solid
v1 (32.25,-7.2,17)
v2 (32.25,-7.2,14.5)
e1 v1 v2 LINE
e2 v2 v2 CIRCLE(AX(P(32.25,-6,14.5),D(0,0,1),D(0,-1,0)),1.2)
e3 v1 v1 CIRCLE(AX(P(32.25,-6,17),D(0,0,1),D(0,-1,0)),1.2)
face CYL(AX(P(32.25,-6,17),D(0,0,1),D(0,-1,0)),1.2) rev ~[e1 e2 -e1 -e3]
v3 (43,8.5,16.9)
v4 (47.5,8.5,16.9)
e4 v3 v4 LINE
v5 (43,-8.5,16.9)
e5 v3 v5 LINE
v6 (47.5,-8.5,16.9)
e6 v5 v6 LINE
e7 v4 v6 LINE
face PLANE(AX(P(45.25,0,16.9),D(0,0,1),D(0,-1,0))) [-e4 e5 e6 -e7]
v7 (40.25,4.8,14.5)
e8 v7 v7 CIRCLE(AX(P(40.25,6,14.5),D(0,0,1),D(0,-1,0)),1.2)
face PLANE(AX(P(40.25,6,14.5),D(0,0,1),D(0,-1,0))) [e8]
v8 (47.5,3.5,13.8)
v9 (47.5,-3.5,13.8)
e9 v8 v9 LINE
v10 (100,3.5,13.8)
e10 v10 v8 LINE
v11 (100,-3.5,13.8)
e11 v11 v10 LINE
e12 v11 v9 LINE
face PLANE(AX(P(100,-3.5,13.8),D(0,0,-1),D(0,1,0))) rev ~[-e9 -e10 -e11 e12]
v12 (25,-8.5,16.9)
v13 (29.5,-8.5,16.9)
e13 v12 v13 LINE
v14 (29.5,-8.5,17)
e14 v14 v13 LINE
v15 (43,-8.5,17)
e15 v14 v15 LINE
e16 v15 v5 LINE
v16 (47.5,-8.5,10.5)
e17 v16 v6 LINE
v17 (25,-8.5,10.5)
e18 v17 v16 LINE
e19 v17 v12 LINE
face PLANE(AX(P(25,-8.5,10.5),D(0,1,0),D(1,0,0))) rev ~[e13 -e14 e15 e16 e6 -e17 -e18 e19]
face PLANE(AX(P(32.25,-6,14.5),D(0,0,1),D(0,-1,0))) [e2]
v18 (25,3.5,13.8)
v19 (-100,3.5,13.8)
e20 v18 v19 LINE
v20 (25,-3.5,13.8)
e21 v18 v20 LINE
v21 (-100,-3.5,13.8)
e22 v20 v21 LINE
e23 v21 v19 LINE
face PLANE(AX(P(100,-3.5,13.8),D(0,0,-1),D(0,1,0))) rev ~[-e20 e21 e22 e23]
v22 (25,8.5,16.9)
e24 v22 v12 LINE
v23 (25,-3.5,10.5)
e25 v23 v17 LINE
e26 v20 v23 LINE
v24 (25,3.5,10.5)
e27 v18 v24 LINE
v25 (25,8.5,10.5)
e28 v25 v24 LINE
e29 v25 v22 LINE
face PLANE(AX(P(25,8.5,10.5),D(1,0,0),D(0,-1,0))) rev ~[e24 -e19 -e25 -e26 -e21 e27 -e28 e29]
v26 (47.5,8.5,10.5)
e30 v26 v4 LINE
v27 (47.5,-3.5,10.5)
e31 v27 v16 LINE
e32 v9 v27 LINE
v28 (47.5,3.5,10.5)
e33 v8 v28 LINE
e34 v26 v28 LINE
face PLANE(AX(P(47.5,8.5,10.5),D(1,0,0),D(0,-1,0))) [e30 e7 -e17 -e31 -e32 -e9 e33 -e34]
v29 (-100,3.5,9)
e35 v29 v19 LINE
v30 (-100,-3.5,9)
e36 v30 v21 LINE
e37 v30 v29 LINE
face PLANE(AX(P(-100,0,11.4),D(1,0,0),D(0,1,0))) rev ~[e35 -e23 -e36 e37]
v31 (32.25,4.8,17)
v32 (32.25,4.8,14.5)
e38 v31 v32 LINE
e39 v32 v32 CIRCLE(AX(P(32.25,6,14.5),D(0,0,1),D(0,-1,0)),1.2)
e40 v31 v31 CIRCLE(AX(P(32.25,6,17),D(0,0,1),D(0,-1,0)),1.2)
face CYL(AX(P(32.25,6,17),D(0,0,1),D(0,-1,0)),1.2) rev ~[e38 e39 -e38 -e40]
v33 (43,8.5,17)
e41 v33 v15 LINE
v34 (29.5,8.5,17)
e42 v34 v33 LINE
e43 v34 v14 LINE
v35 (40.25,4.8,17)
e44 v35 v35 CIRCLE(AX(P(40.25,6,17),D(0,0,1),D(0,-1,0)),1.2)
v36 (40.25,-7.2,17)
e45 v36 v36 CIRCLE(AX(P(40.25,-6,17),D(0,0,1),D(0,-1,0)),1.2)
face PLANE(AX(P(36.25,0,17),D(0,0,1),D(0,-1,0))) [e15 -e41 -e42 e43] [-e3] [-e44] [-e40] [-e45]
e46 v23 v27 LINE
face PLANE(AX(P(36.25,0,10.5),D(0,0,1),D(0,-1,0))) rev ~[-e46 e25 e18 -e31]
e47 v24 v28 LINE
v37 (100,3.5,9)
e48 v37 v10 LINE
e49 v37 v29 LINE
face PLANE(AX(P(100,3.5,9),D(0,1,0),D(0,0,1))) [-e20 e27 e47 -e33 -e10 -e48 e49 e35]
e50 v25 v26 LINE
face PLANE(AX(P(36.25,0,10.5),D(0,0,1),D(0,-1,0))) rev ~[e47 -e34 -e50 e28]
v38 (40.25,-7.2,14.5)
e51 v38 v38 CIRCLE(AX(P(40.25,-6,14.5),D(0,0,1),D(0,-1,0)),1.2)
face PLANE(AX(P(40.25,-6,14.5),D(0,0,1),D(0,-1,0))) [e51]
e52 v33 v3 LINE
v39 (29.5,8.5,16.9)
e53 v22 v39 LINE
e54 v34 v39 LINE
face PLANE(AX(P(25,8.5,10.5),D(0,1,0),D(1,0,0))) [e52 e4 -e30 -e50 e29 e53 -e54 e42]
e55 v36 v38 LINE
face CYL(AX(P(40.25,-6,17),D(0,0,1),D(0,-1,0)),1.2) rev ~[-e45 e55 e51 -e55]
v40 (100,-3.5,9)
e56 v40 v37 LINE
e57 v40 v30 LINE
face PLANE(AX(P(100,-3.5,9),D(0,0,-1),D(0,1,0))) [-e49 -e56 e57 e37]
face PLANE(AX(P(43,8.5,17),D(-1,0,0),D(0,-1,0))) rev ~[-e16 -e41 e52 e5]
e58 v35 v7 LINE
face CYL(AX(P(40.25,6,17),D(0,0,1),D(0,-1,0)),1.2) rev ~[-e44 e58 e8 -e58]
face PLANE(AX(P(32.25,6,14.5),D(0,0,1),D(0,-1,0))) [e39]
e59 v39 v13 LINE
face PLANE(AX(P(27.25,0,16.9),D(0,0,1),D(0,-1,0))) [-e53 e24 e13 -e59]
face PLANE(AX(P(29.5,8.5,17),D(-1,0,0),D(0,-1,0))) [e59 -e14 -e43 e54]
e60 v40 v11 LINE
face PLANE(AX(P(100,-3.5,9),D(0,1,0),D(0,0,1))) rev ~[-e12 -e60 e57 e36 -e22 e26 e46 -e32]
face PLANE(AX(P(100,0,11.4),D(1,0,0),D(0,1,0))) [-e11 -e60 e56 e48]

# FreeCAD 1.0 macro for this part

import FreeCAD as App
import Part
import Sketcher

V = App.Vector
Q = App.Units.Quantity


def add_polygon(sketch, points):
    """Adds a closed chain of lines whose ends are joined by coincident constraints."""
    first, n = sketch.GeometryCount, len(points)
    for a, b in zip(points, points[1:] + points[:1]):
        sketch.addGeometry(Part.LineSegment(App.Vector(*a, 0), App.Vector(*b, 0)), False)
    for i in range(n):
        sketch.addConstraint(Sketcher.Constraint("Coincident", first + i, 2, first + (i + 1) % n, 1))

doc = App.newDocument("Part")
params = doc.addObject("Spreadsheet::Sheet", "Params")
for row, (alias, value) in enumerate([
    ("sketch1_width", "7 mm"),
    ("sketch1_height", "4.8 mm"),
    ("pad1_length", "200 mm"),
    ("sketch2_width", "17 mm"),
    ("sketch2_height", "22.5 mm"),
    ("pad2_length", "6.5 mm"),
    ("sketch3_width", "17 mm"),
    ("sketch3_height", "4.5 mm"),
    ("pocket1_length", "0.1 mm"),
    ("sketch4_diameter", "2.4 mm"),
    ("pocket2_length", "2.5 mm"),
], start=1):
    params.set(f"A{row}", alias)
    params.set(f"B{row}", "=" + value)
    params.setAlias(f"B{row}", alias)

body = doc.addObject("PartDesign::Body", "Body")

# Sketch on XZ plane
sketch1 = body.newObject("Sketcher::SketchObject", "Sketch")
sketch1.AttachmentSupport = (doc.getObject("XZ_Plane"), [""])
sketch1.MapMode = "FlatFace"
add_polygon(sketch1, [(0, 4.8), (0, 0), (7, 0), (7, 4.8)])  # lines 0-3
sketch1.addConstraint([
    Sketcher.Constraint("Vertical", 0),
    Sketcher.Constraint("Horizontal", 1),
    Sketcher.Constraint("Vertical", 2),
    Sketcher.Constraint("Horizontal", 3),
    Sketcher.Constraint("Coincident", 0, 2, -1, 1),
    Sketcher.Constraint("DistanceX", 1, 1, 1, 2, Q("7 mm")),
    Sketcher.Constraint("DistanceY", 0, 2, 0, 1, Q("4.8 mm")),
])
sketch1.setExpression("Constraints[9]", "Params.sketch1_width")
sketch1.setExpression("Constraints[10]", "Params.sketch1_height")
pad1 = body.newObject("PartDesign::Pad", "Pad")
pad1.Profile = sketch1
pad1.setExpression("Length", "Params.pad1_length")
pad1.Reversed = True

# Sketch on XY plane
sketch2 = body.newObject("Sketcher::SketchObject", "Sketch001")
sketch2.AttachmentSupport = (doc.getObject("XY_Plane"), [""])
sketch2.MapMode = "FlatFace"
sketch2.AttachmentOffset = App.Placement(V(0, 0, 1.5), App.Rotation())
add_polygon(sketch2, [(12, 52), (12, 75), (-5, 75), (-5, 52)])  # lines 0-3
sketch2.addConstraint([
    Sketcher.Constraint("Vertical", 0),
    Sketcher.Constraint("Horizontal", 1),
    Sketcher.Constraint("Vertical", 2),
    Sketcher.Constraint("Horizontal", 3),
    Sketcher.Constraint("DistanceX", 1, 2, 1, 1, Q("17 mm")),
    Sketcher.Constraint("DistanceY", 0, 1, 0, 2, Q("22.5 mm")),
    Sketcher.Constraint("DistanceX", -1, 1, 0, 2, Q("12 mm")),
    Sketcher.Constraint("DistanceY", -1, 1, 0, 2, Q("75 mm")),
])
sketch2.setExpression("Constraints[8]", "Params.sketch2_width")
sketch2.setExpression("Constraints[9]", "Params.sketch2_height")
pad2 = body.newObject("PartDesign::Pad", "Pad001")
pad2.Profile = sketch2
pad2.setExpression("Length", "Params.pad2_length")

# Sketch on XY plane
sketch3 = body.newObject("Sketcher::SketchObject", "Sketch002")
sketch3.AttachmentSupport = (doc.getObject("XY_Plane"), [""])
sketch3.MapMode = "FlatFace"
sketch3.AttachmentOffset = App.Placement(V(0, 0, 8), App.Rotation())
add_polygon(sketch3, [(12, 52.5), (12, 57), (-5, 57), (-5, 52.5)])  # lines 0-3
add_polygon(sketch3, [(12, 70.5), (12, 75), (-5, 75), (-5, 70.5)])  # lines 4-7
sketch3.addConstraint([
    Sketcher.Constraint("Vertical", 0),
    Sketcher.Constraint("Horizontal", 1),
    Sketcher.Constraint("Vertical", 2),
    Sketcher.Constraint("Horizontal", 3),
    Sketcher.Constraint("Vertical", 4),
    Sketcher.Constraint("Horizontal", 5),
    Sketcher.Constraint("Vertical", 6),
    Sketcher.Constraint("Horizontal", 7),
    Sketcher.Constraint("Vertical", 3, 2, 4, 2),
    Sketcher.Constraint("Vertical", 2, 2, 5, 2),
    Sketcher.Constraint("Equal", 2, 4),
    Sketcher.Constraint("DistanceX", 1, 2, 1, 1, Q("17 mm")),
    Sketcher.Constraint("DistanceY", 0, 1, 0, 2, Q("4.5 mm")),
    Sketcher.Constraint("DistanceX", -1, 1, 0, 2, Q("12 mm")),
    Sketcher.Constraint("DistanceY", -1, 1, 0, 2, Q("57 mm")),
    Sketcher.Constraint("DistanceY", -1, 1, 4, 2, Q("75 mm")),
])
sketch3.setExpression("Constraints[19]", "Params.sketch3_width")
sketch3.setExpression("Constraints[20]", "Params.sketch3_height")
pocket1 = body.newObject("PartDesign::Pocket", "Pocket")
pocket1.Profile = sketch3
pocket1.setExpression("Length", "Params.pocket1_length")

# Sketch on XY plane
sketch4 = body.newObject("Sketcher::SketchObject", "Sketch003")
sketch4.AttachmentSupport = (doc.getObject("XY_Plane"), [""])
sketch4.MapMode = "FlatFace"
sketch4.AttachmentOffset = App.Placement(V(0, 0, 8), App.Rotation())
sketch4.addGeometry([
    Part.Circle(V(9.5, 59.8, 0), V(0, 0, 1), 1.2),
    Part.Circle(V(-2.5, 59.8, 0), V(0, 0, 1), 1.2),
    Part.Circle(V(-2.5, 67.8, 0), V(0, 0, 1), 1.2),
    Part.Circle(V(9.5, 67.8, 0), V(0, 0, 1), 1.2),
], False)
sketch4.addConstraint([
    Sketcher.Constraint("Equal", 0, 1),
    Sketcher.Constraint("Equal", 1, 2),
    Sketcher.Constraint("Equal", 2, 3),
    Sketcher.Constraint("Horizontal", 0, 3, 1, 3),
    Sketcher.Constraint("Horizontal", 2, 3, 3, 3),
    Sketcher.Constraint("Vertical", 1, 3, 2, 3),
    Sketcher.Constraint("Vertical", 0, 3, 3, 3),
    Sketcher.Constraint("Diameter", 0, Q("2.4 mm")),
    Sketcher.Constraint("DistanceX", 1, 3, 0, 3, Q("12 mm")),
    Sketcher.Constraint("DistanceY", 1, 3, 2, 3, Q("8 mm")),
    Sketcher.Constraint("DistanceX", -1, 1, 0, 3, Q("9.5 mm")),
    Sketcher.Constraint("DistanceY", -1, 1, 0, 3, Q("59.75 mm")),
])
sketch4.setExpression("Constraints[7]", "Params.sketch4_diameter")
pocket2 = body.newObject("PartDesign::Pocket", "Pocket001")
pocket2.Profile = sketch4
pocket2.setExpression("Length", "Params.pocket2_length")
body2 = doc.addObject("PartDesign::Body", "Body001")
doc.recompute()

body.Placement = App.Placement(V(100, -3.5, 9), App.Rotation(V(0, 0, 1), 90))
boolean = body2.newObject("PartDesign::Boolean", "Boolean")
boolean.Type = "Fuse"
boolean.addObjects([body])

doc.recompute()
